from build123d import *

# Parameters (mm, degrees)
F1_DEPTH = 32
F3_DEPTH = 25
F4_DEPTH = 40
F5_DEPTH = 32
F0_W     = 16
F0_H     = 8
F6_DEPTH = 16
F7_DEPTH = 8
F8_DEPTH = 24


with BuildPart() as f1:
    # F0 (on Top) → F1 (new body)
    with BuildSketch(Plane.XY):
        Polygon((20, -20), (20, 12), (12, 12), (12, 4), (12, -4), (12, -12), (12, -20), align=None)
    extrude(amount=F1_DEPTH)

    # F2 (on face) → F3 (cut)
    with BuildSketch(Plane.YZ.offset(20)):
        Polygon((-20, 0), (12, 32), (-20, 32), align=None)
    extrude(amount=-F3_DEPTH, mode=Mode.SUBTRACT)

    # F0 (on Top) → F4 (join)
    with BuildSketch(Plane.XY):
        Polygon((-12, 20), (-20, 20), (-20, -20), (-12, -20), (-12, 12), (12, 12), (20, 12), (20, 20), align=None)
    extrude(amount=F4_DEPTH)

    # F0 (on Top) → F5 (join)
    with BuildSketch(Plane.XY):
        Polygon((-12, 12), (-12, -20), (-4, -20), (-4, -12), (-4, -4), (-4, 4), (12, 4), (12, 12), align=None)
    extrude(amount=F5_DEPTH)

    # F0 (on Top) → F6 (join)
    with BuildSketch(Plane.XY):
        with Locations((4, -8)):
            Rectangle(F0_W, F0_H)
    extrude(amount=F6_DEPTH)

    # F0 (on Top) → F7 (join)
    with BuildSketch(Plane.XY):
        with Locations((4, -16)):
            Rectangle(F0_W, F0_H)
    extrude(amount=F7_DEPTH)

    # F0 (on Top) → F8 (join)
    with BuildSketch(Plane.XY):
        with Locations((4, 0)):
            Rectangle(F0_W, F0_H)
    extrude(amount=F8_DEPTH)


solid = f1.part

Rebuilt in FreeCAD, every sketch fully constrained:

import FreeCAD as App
import Part
import Sketcher


def add_polygon(sketch, points):
    """Adds a closed chain of lines whose ends are joined by coincident constraints."""
    first, n = sketch.GeometryCount, len(points)
    for a, b in zip(points, points[1:] + points[:1]):
        sketch.addGeometry(Part.LineSegment(App.Vector(*a, 0), App.Vector(*b, 0)), False)
    for i in range(n):
        sketch.addConstraint(Sketcher.Constraint("Coincident", first + i, 2, first + (i + 1) % n, 1))

doc = App.newDocument("Part")
params = doc.addObject("Spreadsheet::Sheet", "Params")
for row, (alias, value) in enumerate([
    ("sketch1_width", "8 mm"),
    ("sketch1_height", "32 mm"),
    ("pad1_length", "32 mm"),
    ("sketch2_width", "32 mm"),
    ("pocket1_length", "25 mm"),
    ("sketch3_width", "8 mm"),
    ("sketch3_width2", "32 mm"),
    ("pad2_length", "40 mm"),
    ("sketch4_width", "8 mm"),
    ("sketch4_width2", "16 mm"),
    ("pad3_length", "32 mm"),
    ("sketch5_width", "16 mm"),
    ("sketch5_height", "8 mm"),
    ("pad4_length", "16 mm"),
    ("sketch6_width", "16 mm"),
    ("sketch6_height", "8 mm"),
    ("pad5_length", "8 mm"),
    ("sketch7_width", "16 mm"),
    ("sketch7_height", "8 mm"),
    ("pad6_length", "24 mm"),
], start=1):
    params.set(f"A{row}", alias)
    params.set(f"B{row}", "=" + value)
    params.setAlias(f"B{row}", alias)

body = doc.addObject("PartDesign::Body", "Body")

# Sketch on XY plane
sketch1 = body.newObject("Sketcher::SketchObject", "Sketch")
sketch1.AttachmentSupport = (doc.getObject("XY_Plane"), [""])
sketch1.MapMode = "FlatFace"
add_polygon(sketch1, [(20, -20), (20, 12), (12, 12), (12, -20)])  # lines 0-3
sketch1.addConstraint(Sketcher.Constraint("Vertical", 0))
sketch1.addConstraint(Sketcher.Constraint("Horizontal", 1))
sketch1.addConstraint(Sketcher.Constraint("Vertical", 2))
sketch1.addConstraint(Sketcher.Constraint("Horizontal", 3))
sketch1.addConstraint(Sketcher.Constraint("DistanceX", 1, 2, 1, 1, 8.0))
sketch1.addConstraint(Sketcher.Constraint("DistanceY", 0, 1, 0, 2, 32.0))
sketch1.addConstraint(Sketcher.Constraint("DistanceX", -1, 1, 0, 2, 20.0))
sketch1.addConstraint(Sketcher.Constraint("DistanceY", -1, 1, 0, 2, 12.0))
sketch1.setExpression("Constraints[8]", "Params.sketch1_width")
sketch1.setExpression("Constraints[9]", "Params.sketch1_height")
pad1 = body.newObject("PartDesign::Pad", "Pad")
pad1.Profile = sketch1
pad1.setExpression("Length", "Params.pad1_length")

# Sketch on YZ plane
sketch2 = body.newObject("Sketcher::SketchObject", "Sketch001")
sketch2.AttachmentSupport = (doc.getObject("YZ_Plane"), [""])
sketch2.MapMode = "FlatFace"
sketch2.AttachmentOffset = App.Placement(App.Vector(0, 0, 20), App.Rotation())
add_polygon(sketch2, [(-20, 0), (12, 32), (-20, 32)])  # lines 0-2
sketch2.addConstraint(Sketcher.Constraint("Horizontal", 1))
sketch2.addConstraint(Sketcher.Constraint("Vertical", 2))
sketch2.addConstraint(Sketcher.Constraint("PointOnObject", 2, 2, -1))
sketch2.addConstraint(Sketcher.Constraint("Equal", 1, 2))
sketch2.addConstraint(Sketcher.Constraint("DistanceX", 1, 2, 1, 1, 32.0))
sketch2.addConstraint(Sketcher.Constraint("DistanceX", -1, 1, 0, 2, 12.0))
sketch2.setExpression("Constraints[7]", "Params.sketch2_width")
pocket1 = body.newObject("PartDesign::Pocket", "Pocket")
pocket1.Profile = sketch2
pocket1.setExpression("Length", "Params.pocket1_length")

# Sketch on XY plane
sketch3 = body.newObject("Sketcher::SketchObject", "Sketch002")
sketch3.AttachmentSupport = (doc.getObject("XY_Plane"), [""])
sketch3.MapMode = "FlatFace"
add_polygon(sketch3, [(-20, 20), (-20, -20), (-12, -20), (-12, 12), (20, 12), (20, 20)])  # lines 0-5
sketch3.addConstraint(Sketcher.Constraint("Vertical", 0))
sketch3.addConstraint(Sketcher.Constraint("Horizontal", 1))
sketch3.addConstraint(Sketcher.Constraint("Vertical", 2))
sketch3.addConstraint(Sketcher.Constraint("Horizontal", 3))
sketch3.addConstraint(Sketcher.Constraint("Vertical", 4))
sketch3.addConstraint(Sketcher.Constraint("Horizontal", 5))
sketch3.addConstraint(Sketcher.Constraint("Symmetric", 0, 2, 4, 2, -1, 1))
sketch3.addConstraint(Sketcher.Constraint("Equal", 5, 0))
sketch3.addConstraint(Sketcher.Constraint("Equal", 3, 2))
sketch3.addConstraint(Sketcher.Constraint("DistanceX", 1, 1, 1, 2, 8.0))
sketch3.addConstraint(Sketcher.Constraint("DistanceX", 3, 1, 3, 2, 32.0))
sketch3.setExpression("Constraints[15]", "Params.sketch3_width")
sketch3.setExpression("Constraints[16]", "Params.sketch3_width2")
pad2 = body.newObject("PartDesign::Pad", "Pad001")
pad2.Profile = sketch3
pad2.setExpression("Length", "Params.pad2_length")

# Sketch on XY plane
sketch4 = body.newObject("Sketcher::SketchObject", "Sketch003")
sketch4.AttachmentSupport = (doc.getObject("XY_Plane"), [""])
sketch4.MapMode = "FlatFace"
add_polygon(sketch4, [(-12, 12), (-12, -20), (-4, -20), (-4, 4), (12, 4), (12, 12)])  # lines 0-5
sketch4.addConstraint(Sketcher.Constraint("Vertical", 0))
sketch4.addConstraint(Sketcher.Constraint("Horizontal", 1))
sketch4.addConstraint(Sketcher.Constraint("Vertical", 2))
sketch4.addConstraint(Sketcher.Constraint("Horizontal", 3))
sketch4.addConstraint(Sketcher.Constraint("Vertical", 4))
sketch4.addConstraint(Sketcher.Constraint("Horizontal", 5))
sketch4.addConstraint(Sketcher.Constraint("Equal", 5, 2))
sketch4.addConstraint(Sketcher.Constraint("Equal", 1, 4))
sketch4.addConstraint(Sketcher.Constraint("DistanceX", 1, 1, 1, 2, 8.0))
sketch4.addConstraint(Sketcher.Constraint("DistanceX", 3, 1, 3, 2, 16.0))
sketch4.addConstraint(Sketcher.Constraint("DistanceX", 0, 2, -1, 1, 12.0))
sketch4.addConstraint(Sketcher.Constraint("DistanceY", 0, 2, -1, 1, 20.0))
sketch4.setExpression("Constraints[14]", "Params.sketch4_width")
sketch4.setExpression("Constraints[15]", "Params.sketch4_width2")
pad3 = body.newObject("PartDesign::Pad", "Pad002")
pad3.Profile = sketch4
pad3.setExpression("Length", "Params.pad3_length")

# Sketch on XY plane
sketch5 = body.newObject("Sketcher::SketchObject", "Sketch004")
sketch5.AttachmentSupport = (doc.getObject("XY_Plane"), [""])
sketch5.MapMode = "FlatFace"
add_polygon(sketch5, [(-4, -4), (-4, -12), (12, -12), (12, -4)])  # lines 0-3
sketch5.addConstraint(Sketcher.Constraint("Vertical", 0))
sketch5.addConstraint(Sketcher.Constraint("Horizontal", 1))
sketch5.addConstraint(Sketcher.Constraint("Vertical", 2))
sketch5.addConstraint(Sketcher.Constraint("Horizontal", 3))
sketch5.addConstraint(Sketcher.Constraint("DistanceX", 1, 1, 1, 2, 16.0))
sketch5.addConstraint(Sketcher.Constraint("DistanceY", 0, 2, 0, 1, 8.0))
sketch5.addConstraint(Sketcher.Constraint("DistanceX", 0, 2, -1, 1, 4.0))
sketch5.addConstraint(Sketcher.Constraint("DistanceY", 0, 2, -1, 1, 12.0))
sketch5.setExpression("Constraints[8]", "Params.sketch5_width")
sketch5.setExpression("Constraints[9]", "Params.sketch5_height")
pad4 = body.newObject("PartDesign::Pad", "Pad003")
pad4.Profile = sketch5
pad4.setExpression("Length", "Params.pad4_length")

# Sketch on XY plane
sketch6 = body.newObject("Sketcher::SketchObject", "Sketch005")
sketch6.AttachmentSupport = (doc.getObject("XY_Plane"), [""])
sketch6.MapMode = "FlatFace"
add_polygon(sketch6, [(-4, -12), (-4, -20), (12, -20), (12, -12)])  # lines 0-3
sketch6.addConstraint(Sketcher.Constraint("Vertical", 0))
sketch6.addConstraint(Sketcher.Constraint("Horizontal", 1))
sketch6.addConstraint(Sketcher.Constraint("Vertical", 2))
sketch6.addConstraint(Sketcher.Constraint("Horizontal", 3))
sketch6.addConstraint(Sketcher.Constraint("DistanceX", 1, 1, 1, 2, 16.0))
sketch6.addConstraint(Sketcher.Constraint("DistanceY", 0, 2, 0, 1, 8.0))
sketch6.addConstraint(Sketcher.Constraint("DistanceX", 0, 2, -1, 1, 4.0))
sketch6.addConstraint(Sketcher.Constraint("DistanceY", 0, 2, -1, 1, 20.0))
sketch6.setExpression("Constraints[8]", "Params.sketch6_width")
sketch6.setExpression("Constraints[9]", "Params.sketch6_height")
pad5 = body.newObject("PartDesign::Pad", "Pad004")
pad5.Profile = sketch6
pad5.setExpression("Length", "Params.pad5_length")

# Sketch on XY plane
sketch7 = body.newObject("Sketcher::SketchObject", "Sketch006")
sketch7.AttachmentSupport = (doc.getObject("XY_Plane"), [""])
sketch7.MapMode = "FlatFace"
add_polygon(sketch7, [(-4, 4), (-4, -4), (12, -4), (12, 4)])  # lines 0-3
sketch7.addConstraint(Sketcher.Constraint("Vertical", 0))
sketch7.addConstraint(Sketcher.Constraint("Horizontal", 1))
sketch7.addConstraint(Sketcher.Constraint("Vertical", 2))
sketch7.addConstraint(Sketcher.Constraint("Horizontal", 3))
sketch7.addConstraint(Sketcher.Constraint("DistanceX", 1, 1, 1, 2, 16.0))
sketch7.addConstraint(Sketcher.Constraint("DistanceY", 0, 2, 0, 1, 8.0))
sketch7.addConstraint(Sketcher.Constraint("DistanceX", 0, 2, -1, 1, 4.0))
sketch7.addConstraint(Sketcher.Constraint("DistanceY", 0, 2, -1, 1, 4.0))
sketch7.setExpression("Constraints[8]", "Params.sketch7_width")
sketch7.setExpression("Constraints[9]", "Params.sketch7_height")
pad6 = body.newObject("PartDesign::Pad", "Pad005")
pad6.Profile = sketch7
pad6.setExpression("Length", "Params.pad6_length")

doc.recompute()
